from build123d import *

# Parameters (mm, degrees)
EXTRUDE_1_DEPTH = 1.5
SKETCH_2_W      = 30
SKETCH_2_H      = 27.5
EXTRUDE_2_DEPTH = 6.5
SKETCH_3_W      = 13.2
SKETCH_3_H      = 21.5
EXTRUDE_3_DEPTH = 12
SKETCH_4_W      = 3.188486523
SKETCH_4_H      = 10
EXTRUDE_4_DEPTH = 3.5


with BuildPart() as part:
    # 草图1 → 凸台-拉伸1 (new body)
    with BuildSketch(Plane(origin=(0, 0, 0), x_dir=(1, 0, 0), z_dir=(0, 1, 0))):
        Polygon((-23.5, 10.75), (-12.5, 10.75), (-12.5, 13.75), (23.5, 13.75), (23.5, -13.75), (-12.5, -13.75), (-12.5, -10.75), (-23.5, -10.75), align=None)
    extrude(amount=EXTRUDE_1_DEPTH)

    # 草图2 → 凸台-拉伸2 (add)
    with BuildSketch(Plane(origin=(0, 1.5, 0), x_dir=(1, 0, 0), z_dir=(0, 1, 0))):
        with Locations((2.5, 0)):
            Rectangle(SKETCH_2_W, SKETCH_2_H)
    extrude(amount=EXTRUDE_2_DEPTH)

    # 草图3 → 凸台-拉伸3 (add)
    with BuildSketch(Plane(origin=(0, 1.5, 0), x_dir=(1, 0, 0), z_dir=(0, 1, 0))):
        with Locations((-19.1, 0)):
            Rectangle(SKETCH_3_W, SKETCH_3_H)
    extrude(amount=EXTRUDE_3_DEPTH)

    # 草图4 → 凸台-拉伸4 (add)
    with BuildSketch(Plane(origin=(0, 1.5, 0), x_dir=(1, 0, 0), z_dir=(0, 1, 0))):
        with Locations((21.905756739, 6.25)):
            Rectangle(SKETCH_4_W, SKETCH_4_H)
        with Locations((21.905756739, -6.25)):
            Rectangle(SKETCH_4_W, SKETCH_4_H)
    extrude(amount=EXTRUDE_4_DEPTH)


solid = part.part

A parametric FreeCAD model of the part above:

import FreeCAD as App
import Part
import Sketcher
from FreeCAD import Vector

doc = App.newDocument("Part")
body = doc.addObject("PartDesign::Body", "Body")

sketch1 = doc.addObject("Sketcher::SketchObject", "Sketch")
body.addObject(sketch1)
sketch1.AttachmentSupport = (doc.XZ_Plane, [""])
sketch1.MapMode = "FlatFace"
sketch1.addGeometry(Part.LineSegment(Vector(-12.5, -10.8, 0), Vector(-23.5, -10.8, 0)), False)
sketch1.addGeometry(Part.LineSegment(Vector(-23.5, -10.8, 0), Vector(-23.5, 10.8, 0)), False)
sketch1.addGeometry(Part.LineSegment(Vector(-23.5, 10.8, 0), Vector(-12.5, 10.8, 0)), False)
sketch1.addGeometry(Part.LineSegment(Vector(-12.5, 10.8, 0), Vector(-12.5, 13.8, 0)), False)
sketch1.addGeometry(Part.LineSegment(Vector(-12.5, 13.8, 0), Vector(23.5, 13.8, 0)), False)
sketch1.addGeometry(Part.LineSegment(Vector(23.5, 13.8, 0), Vector(23.5, -13.8, 0)), False)
sketch1.addGeometry(Part.LineSegment(Vector(23.5, -13.8, 0), Vector(-12.5, -13.8, 0)), False)
sketch1.addGeometry(Part.LineSegment(Vector(-12.5, -13.8, 0), Vector(-12.5, -10.8, 0)), False)
sketch1.addConstraint(Sketcher.Constraint("Coincident", 0, 2, 1, 1))
sketch1.addConstraint(Sketcher.Constraint("Coincident", 1, 2, 2, 1))
sketch1.addConstraint(Sketcher.Constraint("Coincident", 2, 2, 3, 1))
sketch1.addConstraint(Sketcher.Constraint("Coincident", 3, 2, 4, 1))
sketch1.addConstraint(Sketcher.Constraint("Coincident", 4, 2, 5, 1))
sketch1.addConstraint(Sketcher.Constraint("Coincident", 5, 2, 6, 1))
sketch1.addConstraint(Sketcher.Constraint("Coincident", 6, 2, 7, 1))
sketch1.addConstraint(Sketcher.Constraint("Coincident", 7, 2, 0, 1))
sketch1.addConstraint(Sketcher.Constraint("Horizontal", 0))
sketch1.addConstraint(Sketcher.Constraint("Vertical", 1))
sketch1.addConstraint(Sketcher.Constraint("Horizontal", 2))
sketch1.addConstraint(Sketcher.Constraint("Vertical", 3))
sketch1.addConstraint(Sketcher.Constraint("Horizontal", 4))
sketch1.addConstraint(Sketcher.Constraint("Vertical", 5))
sketch1.addConstraint(Sketcher.Constraint("Horizontal", 6))
sketch1.addConstraint(Sketcher.Constraint("Vertical", 7))
sketch1.addConstraint(Sketcher.Constraint("Symmetric", 3, 2, 6, 2, -1))
sketch1.addConstraint(Sketcher.Constraint("Equal", 3, 7))
sketch1.addConstraint(Sketcher.Constraint("DistanceX", 0, 2, 0, 1, 11.0))
sketch1.addConstraint(Sketcher.Constraint("DistanceX", 4, 1, 4, 2, 36.0))
sketch1.addConstraint(Sketcher.Constraint("DistanceY", 3, 1, 3, 2, 3.0))
sketch1.addConstraint(Sketcher.Constraint("DistanceY", 1, 1, 1, 2, 21.5))
sketch1.addConstraint(Sketcher.Constraint("DistanceX", 0, 2, -1, 1, 23.5))
pad1 = doc.addObject("PartDesign::Pad", "Pad")
body.addObject(pad1)
pad1.Profile = sketch1
pad1.Length = 1.5
pad1.Reversed = True

sketch2 = doc.addObject("Sketcher::SketchObject", "Sketch001")
body.addObject(sketch2)
sketch2.AttachmentSupport = (doc.XZ_Plane, [""])
sketch2.MapMode = "FlatFace"
sketch2.AttachmentOffset = App.Placement(Vector(0, 0, -1.5), App.Rotation())
sketch2.addGeometry(Part.LineSegment(Vector(-12, -14, 0), Vector(-12, 14, 0)), False)
sketch2.addGeometry(Part.LineSegment(Vector(-12, 14, 0), Vector(18, 14, 0)), False)
sketch2.addGeometry(Part.LineSegment(Vector(18, 14, 0), Vector(18, -14, 0)), False)
sketch2.addGeometry(Part.LineSegment(Vector(18, -14, 0), Vector(-12, -14, 0)), False)
sketch2.addConstraint(Sketcher.Constraint("Coincident", 0, 2, 1, 1))
sketch2.addConstraint(Sketcher.Constraint("Coincident", 1, 2, 2, 1))
sketch2.addConstraint(Sketcher.Constraint("Coincident", 2, 2, 3, 1))
sketch2.addConstraint(Sketcher.Constraint("Coincident", 3, 2, 0, 1))
sketch2.addConstraint(Sketcher.Constraint("Vertical", 0))
sketch2.addConstraint(Sketcher.Constraint("Horizontal", 1))
sketch2.addConstraint(Sketcher.Constraint("Vertical", 2))
sketch2.addConstraint(Sketcher.Constraint("Horizontal", 3))
sketch2.addConstraint(Sketcher.Constraint("DistanceX", 1, 1, 1, 2, 30.0))
sketch2.addConstraint(Sketcher.Constraint("DistanceY", 0, 1, 0, 2, 27.5))
sketch2.addConstraint(Sketcher.Constraint("DistanceX", 0, 2, -1, 1, 12.5))
sketch2.addConstraint(Sketcher.Constraint("DistanceY", -1, 1, 0, 2, 13.75))
pad2 = doc.addObject("PartDesign::Pad", "Pad001")
body.addObject(pad2)
pad2.Profile = sketch2
pad2.Length = 6.5
pad2.Reversed = True

sketch3 = doc.addObject("Sketcher::SketchObject", "Sketch002")
body.addObject(sketch3)
sketch3.AttachmentSupport = (doc.XZ_Plane, [""])
sketch3.MapMode = "FlatFace"
sketch3.AttachmentOffset = App.Placement(Vector(0, 0, -1.5), App.Rotation())
sketch3.addGeometry(Part.LineSegment(Vector(-26, -11, 0), Vector(-26, 11, 0)), False)
sketch3.addGeometry(Part.LineSegment(Vector(-26, 11, 0), Vector(-12, 11, 0)), False)
sketch3.addGeometry(Part.LineSegment(Vector(-12, 11, 0), Vector(-12, -11, 0)), False)
sketch3.addGeometry(Part.LineSegment(Vector(-12, -11, 0), Vector(-26, -11, 0)), False)
sketch3.addConstraint(Sketcher.Constraint("Coincident", 0, 2, 1, 1))
sketch3.addConstraint(Sketcher.Constraint("Coincident", 1, 2, 2, 1))
sketch3.addConstraint(Sketcher.Constraint("Coincident", 2, 2, 3, 1))
sketch3.addConstraint(Sketcher.Constraint("Coincident", 3, 2, 0, 1))
sketch3.addConstraint(Sketcher.Constraint("Vertical", 0))
sketch3.addConstraint(Sketcher.Constraint("Horizontal", 1))
sketch3.addConstraint(Sketcher.Constraint("Vertical", 2))
sketch3.addConstraint(Sketcher.Constraint("Horizontal", 3))
sketch3.addConstraint(Sketcher.Constraint("DistanceX", 1, 1, 1, 2, 13.2))
sketch3.addConstraint(Sketcher.Constraint("DistanceY", 0, 1, 0, 2, 21.5))
sketch3.addConstraint(Sketcher.Constraint("DistanceX", 0, 2, -1, 1, 25.7))
sketch3.addConstraint(Sketcher.Constraint("DistanceY", -1, 1, 0, 2, 10.75))
pad3 = doc.addObject("PartDesign::Pad", "Pad002")
body.addObject(pad3)
pad3.Profile = sketch3
pad3.Length = 12
pad3.Reversed = True

sketch4 = doc.addObject("Sketcher::SketchObject", "Sketch003")
body.addObject(sketch4)
sketch4.AttachmentSupport = (doc.XZ_Plane, [""])
sketch4.MapMode = "FlatFace"
sketch4.AttachmentOffset = App.Placement(Vector(0, 0, -1.5), App.Rotation())
sketch4.addGeometry(Part.LineSegment(Vector(20.3, -11.2, 0), Vector(20.3, -1.2, 0)), False)
sketch4.addGeometry(Part.LineSegment(Vector(20.3, -1.2, 0), Vector(23.5, -1.2, 0)), False)
sketch4.addGeometry(Part.LineSegment(Vector(23.5, -1.2, 0), Vector(23.5, -11.2, 0)), False)
sketch4.addGeometry(Part.LineSegment(Vector(23.5, -11.2, 0), Vector(20.3, -11.2, 0)), False)
sketch4.addGeometry(Part.LineSegment(Vector(20.3, 1.2, 0), Vector(20.3, 11.2, 0)), False)
sketch4.addGeometry(Part.LineSegment(Vector(20.3, 11.2, 0), Vector(23.5, 11.2, 0)), False)
sketch4.addGeometry(Part.LineSegment(Vector(23.5, 11.2, 0), Vector(23.5, 1.2, 0)), False)
sketch4.addGeometry(Part.LineSegment(Vector(23.5, 1.2, 0), Vector(20.3, 1.2, 0)), False)
sketch4.addConstraint(Sketcher.Constraint("Coincident", 0, 2, 1, 1))
sketch4.addConstraint(Sketcher.Constraint("Coincident", 1, 2, 2, 1))
sketch4.addConstraint(Sketcher.Constraint("Coincident", 2, 2, 3, 1))
sketch4.addConstraint(Sketcher.Constraint("Coincident", 3, 2, 0, 1))
sketch4.addConstraint(Sketcher.Constraint("Coincident", 4, 2, 5, 1))
sketch4.addConstraint(Sketcher.Constraint("Coincident", 5, 2, 6, 1))
sketch4.addConstraint(Sketcher.Constraint("Coincident", 6, 2, 7, 1))
sketch4.addConstraint(Sketcher.Constraint("Coincident", 7, 2, 4, 1))
sketch4.addConstraint(Sketcher.Constraint("Vertical", 0))
sketch4.addConstraint(Sketcher.Constraint("Horizontal", 1))
sketch4.addConstraint(Sketcher.Constraint("Vertical", 2))
sketch4.addConstraint(Sketcher.Constraint("Horizontal", 3))
sketch4.addConstraint(Sketcher.Constraint("Vertical", 4))
sketch4.addConstraint(Sketcher.Constraint("Horizontal", 5))
sketch4.addConstraint(Sketcher.Constraint("Vertical", 6))
sketch4.addConstraint(Sketcher.Constraint("Horizontal", 7))
sketch4.addConstraint(Sketcher.Constraint("Symmetric", 3, 2, 4, 2, -1))
sketch4.addConstraint(Sketcher.Constraint("Symmetric", 1, 2, 6, 2, -1))
sketch4.addConstraint(Sketcher.Constraint("DistanceY", 0, 1, 0, 2, 10.0))
sketch4.addConstraint(Sketcher.Constraint("DistanceX", -1, 1, 1, 2, 23.5))
sketch4.addConstraint(Sketcher.Constraint("DistanceY", 0, 2, 4, 2, 12.5))
sketch4.addConstraint(Sketcher.Constraint("DistanceX", 1, 1, 1, 2, 3.188487))
pad4 = doc.addObject("PartDesign::Pad", "Pad003")
body.addObject(pad4)
pad4.Profile = sketch4
pad4.Length = 3.5
pad4.Reversed = True

doc.recompute()
